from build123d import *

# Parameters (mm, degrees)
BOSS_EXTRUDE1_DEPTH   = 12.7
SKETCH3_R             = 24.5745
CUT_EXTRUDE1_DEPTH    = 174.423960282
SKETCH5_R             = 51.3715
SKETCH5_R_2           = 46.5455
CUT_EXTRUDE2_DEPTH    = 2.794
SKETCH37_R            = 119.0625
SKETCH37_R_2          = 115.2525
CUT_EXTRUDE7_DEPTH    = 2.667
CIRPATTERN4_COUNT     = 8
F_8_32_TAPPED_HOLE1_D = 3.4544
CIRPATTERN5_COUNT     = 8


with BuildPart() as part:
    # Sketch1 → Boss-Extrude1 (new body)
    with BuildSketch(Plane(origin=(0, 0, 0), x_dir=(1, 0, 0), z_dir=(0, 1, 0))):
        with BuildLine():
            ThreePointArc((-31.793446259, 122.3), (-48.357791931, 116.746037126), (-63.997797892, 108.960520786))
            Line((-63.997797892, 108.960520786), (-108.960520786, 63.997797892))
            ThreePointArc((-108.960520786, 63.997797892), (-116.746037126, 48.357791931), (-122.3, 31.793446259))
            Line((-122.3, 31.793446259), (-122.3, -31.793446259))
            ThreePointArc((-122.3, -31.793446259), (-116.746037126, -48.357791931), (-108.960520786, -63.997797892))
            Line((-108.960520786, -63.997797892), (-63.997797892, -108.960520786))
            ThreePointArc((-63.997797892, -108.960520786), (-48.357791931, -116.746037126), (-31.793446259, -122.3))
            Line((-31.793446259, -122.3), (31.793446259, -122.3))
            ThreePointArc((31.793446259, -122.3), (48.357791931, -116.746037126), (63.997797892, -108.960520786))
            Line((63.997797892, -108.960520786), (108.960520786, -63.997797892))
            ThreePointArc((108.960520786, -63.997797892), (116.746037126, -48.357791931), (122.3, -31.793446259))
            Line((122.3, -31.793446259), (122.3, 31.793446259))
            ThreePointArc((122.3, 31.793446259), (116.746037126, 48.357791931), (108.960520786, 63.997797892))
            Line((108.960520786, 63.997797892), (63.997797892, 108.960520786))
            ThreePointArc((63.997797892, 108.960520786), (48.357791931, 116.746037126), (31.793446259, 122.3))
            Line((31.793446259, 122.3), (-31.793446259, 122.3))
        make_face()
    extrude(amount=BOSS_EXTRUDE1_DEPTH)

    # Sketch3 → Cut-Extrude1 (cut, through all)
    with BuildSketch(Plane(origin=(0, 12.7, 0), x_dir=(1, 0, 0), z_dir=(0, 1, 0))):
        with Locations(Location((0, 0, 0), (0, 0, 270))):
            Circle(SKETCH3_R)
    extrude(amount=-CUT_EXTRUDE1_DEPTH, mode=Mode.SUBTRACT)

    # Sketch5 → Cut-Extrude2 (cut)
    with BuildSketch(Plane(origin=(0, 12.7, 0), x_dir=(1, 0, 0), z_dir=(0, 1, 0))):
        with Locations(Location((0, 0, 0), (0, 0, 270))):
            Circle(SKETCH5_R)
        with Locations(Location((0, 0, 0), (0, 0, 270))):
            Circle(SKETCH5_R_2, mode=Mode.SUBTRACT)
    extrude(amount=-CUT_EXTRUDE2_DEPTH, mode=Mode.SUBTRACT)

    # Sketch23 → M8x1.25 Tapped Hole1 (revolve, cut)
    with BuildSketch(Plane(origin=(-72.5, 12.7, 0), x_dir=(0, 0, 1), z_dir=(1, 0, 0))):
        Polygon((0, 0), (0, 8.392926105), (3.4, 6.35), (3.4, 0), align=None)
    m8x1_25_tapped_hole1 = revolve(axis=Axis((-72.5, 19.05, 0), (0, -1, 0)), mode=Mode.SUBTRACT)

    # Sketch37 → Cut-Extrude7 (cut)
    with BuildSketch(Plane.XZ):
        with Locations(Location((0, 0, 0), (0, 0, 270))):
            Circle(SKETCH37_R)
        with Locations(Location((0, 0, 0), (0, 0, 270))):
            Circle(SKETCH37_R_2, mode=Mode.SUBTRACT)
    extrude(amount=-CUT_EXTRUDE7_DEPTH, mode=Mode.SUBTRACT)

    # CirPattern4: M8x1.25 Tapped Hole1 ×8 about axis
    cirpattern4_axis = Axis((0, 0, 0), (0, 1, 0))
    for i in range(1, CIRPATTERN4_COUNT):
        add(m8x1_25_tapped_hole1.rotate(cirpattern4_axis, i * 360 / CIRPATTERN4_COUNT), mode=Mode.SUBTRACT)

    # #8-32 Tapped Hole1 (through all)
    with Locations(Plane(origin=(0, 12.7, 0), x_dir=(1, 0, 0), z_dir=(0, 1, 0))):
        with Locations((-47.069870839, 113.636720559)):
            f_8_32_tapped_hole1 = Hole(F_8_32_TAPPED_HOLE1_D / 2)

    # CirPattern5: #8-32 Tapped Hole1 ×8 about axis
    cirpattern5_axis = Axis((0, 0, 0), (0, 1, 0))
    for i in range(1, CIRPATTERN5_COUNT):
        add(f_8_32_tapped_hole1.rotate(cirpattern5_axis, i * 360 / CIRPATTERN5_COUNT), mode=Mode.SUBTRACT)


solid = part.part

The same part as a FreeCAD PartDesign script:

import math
import FreeCAD as App
import Part
import Sketcher
Q = App.Units.Quantity


def add_polygon(sketch, points):
    """Adds a closed chain of lines whose ends are joined by coincident constraints."""
    first, n = sketch.GeometryCount, len(points)
    for a, b in zip(points, points[1:] + points[:1]):
        sketch.addGeometry(Part.LineSegment(App.Vector(*a, 0), App.Vector(*b, 0)), False)
    for i in range(n):
        sketch.addConstraint(Sketcher.Constraint("Coincident", first + i, 2, first + (i + 1) % n, 1))

doc = App.newDocument("Part")
body = doc.addObject("PartDesign::Body", "Body")

sketch1 = body.newObject("Sketcher::SketchObject", "Sketch")
sketch1.AttachmentSupport = (doc.getObject("XZ_Plane"), [""])
sketch1.MapMode = "FlatFace"
sketch1.addGeometry(Part.ArcOfCircle(Part.Circle(App.Vector(0, 0, 0), App.Vector(0, 0, 1), 126), math.radians(-120.43), math.radians(-104.57)), False)
sketch1.addGeometry(Part.LineSegment(App.Vector(-64, -109, 0), App.Vector(-109, -64, 0)), False)
sketch1.addGeometry(Part.ArcOfCircle(Part.Circle(App.Vector(0, 0, 0), App.Vector(0, 0, 1), 126), math.radians(-165.43), math.radians(-149.57)), False)
sketch1.addGeometry(Part.LineSegment(App.Vector(-122, -32, 0), App.Vector(-122, 32, 0)), False)
sketch1.addGeometry(Part.ArcOfCircle(Part.Circle(App.Vector(0, 0, 0), App.Vector(0, 0, 1), 126), math.radians(149.57), math.radians(165.43)), False)
sketch1.addGeometry(Part.LineSegment(App.Vector(-109, 64, 0), App.Vector(-64, 109, 0)), False)
sketch1.addGeometry(Part.ArcOfCircle(Part.Circle(App.Vector(0, 0, 0), App.Vector(0, 0, 1), 126), math.radians(104.57), math.radians(120.43)), False)
sketch1.addGeometry(Part.LineSegment(App.Vector(-32, 122, 0), App.Vector(32, 122, 0)), False)
sketch1.addGeometry(Part.ArcOfCircle(Part.Circle(App.Vector(0, 0, 0), App.Vector(0, 0, 1), 126), math.radians(59.57), math.radians(75.43)), False)
sketch1.addGeometry(Part.LineSegment(App.Vector(64, 109, 0), App.Vector(109, 64, 0)), False)
sketch1.addGeometry(Part.ArcOfCircle(Part.Circle(App.Vector(0, 0, 0), App.Vector(0, 0, 1), 126), math.radians(14.57), math.radians(30.43)), False)
sketch1.addGeometry(Part.LineSegment(App.Vector(122, 32, 0), App.Vector(122, -32, 0)), False)
sketch1.addGeometry(Part.ArcOfCircle(Part.Circle(App.Vector(0, 0, 0), App.Vector(0, 0, 1), 126), math.radians(-30.43), math.radians(-14.57)), False)
sketch1.addGeometry(Part.LineSegment(App.Vector(109, -64, 0), App.Vector(64, -109, 0)), False)
sketch1.addGeometry(Part.ArcOfCircle(Part.Circle(App.Vector(0, 0, 0), App.Vector(0, 0, 1), 126), math.radians(-75.43), math.radians(-59.57)), False)
sketch1.addGeometry(Part.LineSegment(App.Vector(32, -122, 0), App.Vector(-32, -122, 0)), False)
sketch1.addConstraint(Sketcher.Constraint("Coincident", 0, 1, 1, 1))
sketch1.addConstraint(Sketcher.Constraint("Coincident", 1, 2, 2, 2))
sketch1.addConstraint(Sketcher.Constraint("Coincident", 2, 1, 3, 1))
sketch1.addConstraint(Sketcher.Constraint("Coincident", 3, 2, 4, 2))
sketch1.addConstraint(Sketcher.Constraint("Coincident", 4, 1, 5, 1))
sketch1.addConstraint(Sketcher.Constraint("Coincident", 5, 2, 6, 2))
sketch1.addConstraint(Sketcher.Constraint("Coincident", 6, 1, 7, 1))
sketch1.addConstraint(Sketcher.Constraint("Coincident", 7, 2, 8, 2))
sketch1.addConstraint(Sketcher.Constraint("Coincident", 8, 1, 9, 1))
sketch1.addConstraint(Sketcher.Constraint("Coincident", 9, 2, 10, 2))
sketch1.addConstraint(Sketcher.Constraint("Coincident", 10, 1, 11, 1))
sketch1.addConstraint(Sketcher.Constraint("Coincident", 11, 2, 12, 2))
sketch1.addConstraint(Sketcher.Constraint("Coincident", 12, 1, 13, 1))
sketch1.addConstraint(Sketcher.Constraint("Coincident", 13, 2, 14, 2))
sketch1.addConstraint(Sketcher.Constraint("Coincident", 14, 1, 15, 1))
sketch1.addConstraint(Sketcher.Constraint("Coincident", 15, 2, 0, 2))
sketch1.addConstraint(Sketcher.Constraint("Vertical", 3))
sketch1.addConstraint(Sketcher.Constraint("Horizontal", 7))
sketch1.addConstraint(Sketcher.Constraint("Vertical", 11))
sketch1.addConstraint(Sketcher.Constraint("Horizontal", 15))
sketch1.addConstraint(Sketcher.Constraint("Coincident", 0, 3, -1, 1))
sketch1.addConstraint(Sketcher.Constraint("Coincident", 2, 3, -1, 1))
sketch1.addConstraint(Sketcher.Constraint("Coincident", 4, 3, -1, 1))
sketch1.addConstraint(Sketcher.Constraint("Coincident", 6, 3, -1, 1))
sketch1.addConstraint(Sketcher.Constraint("Coincident", 8, 3, -1, 1))
sketch1.addConstraint(Sketcher.Constraint("Coincident", 10, 3, -1, 1))
sketch1.addConstraint(Sketcher.Constraint("Coincident", 12, 3, -1, 1))
sketch1.addConstraint(Sketcher.Constraint("Coincident", 14, 3, -1, 1))
sketch1.addConstraint(Sketcher.Constraint("Equal", 0, 2))
sketch1.addConstraint(Sketcher.Constraint("Equal", 2, 4))
sketch1.addConstraint(Sketcher.Constraint("Equal", 4, 6))
sketch1.addConstraint(Sketcher.Constraint("Equal", 6, 8))
sketch1.addConstraint(Sketcher.Constraint("Equal", 8, 10))
sketch1.addConstraint(Sketcher.Constraint("Equal", 10, 12))
sketch1.addConstraint(Sketcher.Constraint("Equal", 12, 14))
sketch1.addConstraint(Sketcher.Constraint("Perpendicular", 1, 5))
sketch1.addConstraint(Sketcher.Constraint("Perpendicular", 5, 9))
sketch1.addConstraint(Sketcher.Constraint("Perpendicular", 9, 13))
sketch1.addConstraint(Sketcher.Constraint("Horizontal", 5, 2, 8, 1))
sketch1.addConstraint(Sketcher.Constraint("Horizontal", 4, 1, 9, 2))
sketch1.addConstraint(Sketcher.Constraint("Horizontal", 3, 2, 10, 1))
sketch1.addConstraint(Sketcher.Constraint("Horizontal", 1, 2, 12, 1))
sketch1.addConstraint(Sketcher.Constraint("Vertical", 1, 2, 4, 1))
sketch1.addConstraint(Sketcher.Constraint("Vertical", 7, 2, 14, 1))
sketch1.addConstraint(Sketcher.Constraint("Equal", 15, 3))
sketch1.addConstraint(Sketcher.Constraint("Radius", 0, Q("4.975 in")))
sketch1.addConstraint(Sketcher.Constraint("DistanceX", 2, 1, -1, 1, Q("122.3 mm")))
sketch1.addConstraint(Sketcher.Constraint("DistanceY", 0, 1, -1, 1, Q("108.960521 mm")))
pad1 = body.newObject("PartDesign::Pad", "Pad")
pad1.Profile = sketch1
pad1.Length = Q("0.5 in")
pad1.Reversed = True

sketch2 = body.newObject("Sketcher::SketchObject", "Sketch001")
sketch2.AttachmentSupport = (doc.getObject("XZ_Plane"), [""])
sketch2.MapMode = "FlatFace"
sketch2.AttachmentOffset = App.Placement(App.Vector(0, 0, -0.5 * 25.4), App.Rotation())
sketch2.addGeometry(Part.Circle(App.Vector(0, 0, 0), App.Vector(0, 0, 1), 25), False)
sketch2.addConstraint(Sketcher.Constraint("Coincident", 0, 3, -1, 1))
sketch2.addConstraint(Sketcher.Constraint("Diameter", 0, Q("1.935 in")))
pocket1 = body.newObject("PartDesign::Pocket", "Pocket")
pocket1.Profile = sketch2
pocket1.Type = "ThroughAll"
pocket1.Reversed = True

sketch3 = body.newObject("Sketcher::SketchObject", "Sketch002")
sketch3.AttachmentSupport = (doc.getObject("XZ_Plane"), [""])
sketch3.MapMode = "FlatFace"
sketch3.AttachmentOffset = App.Placement(App.Vector(0, 0, -0.5 * 25.4), App.Rotation())
sketch3.addGeometry(Part.Circle(App.Vector(0, 0, 0), App.Vector(0, 0, 1), 51), False)
sketch3.addGeometry(Part.Circle(App.Vector(0, 0, 0), App.Vector(0, 0, 1), 47), False)
sketch3.addConstraint(Sketcher.Constraint("Coincident", 0, 3, -1, 1))
sketch3.addConstraint(Sketcher.Constraint("Coincident", 1, 3, -1, 1))
sketch3.addConstraint(Sketcher.Constraint("Diameter", 0, Q("4.045 in")))
sketch3.addConstraint(Sketcher.Constraint("Diameter", 1, Q("3.665 in")))
pocket2 = body.newObject("PartDesign::Pocket", "Pocket001")
pocket2.Profile = sketch3
pocket2.Length = Q("0.11 in")
pocket2.Reversed = True

sketch4 = body.newObject("Sketcher::SketchObject", "Sketch003")
sketch4.AttachmentSupport = (doc.getObject("YZ_Plane"), [""])
sketch4.MapMode = "FlatFace"
sketch4.AttachmentOffset = App.Placement(App.Vector(0, 0, -72.5), App.Rotation())
add_polygon(sketch4, [(4.3, 0), (12.7, 0), (12.7, 3.4), (6.3, 3.4)])
sketch4.addConstraint(Sketcher.Constraint("Horizontal", 0))
sketch4.addConstraint(Sketcher.Constraint("Vertical", 1))
sketch4.addConstraint(Sketcher.Constraint("Horizontal", 2))
sketch4.addConstraint(Sketcher.Constraint("PointOnObject", 0, 2, -1))
sketch4.addConstraint(Sketcher.Constraint("Angle", 3, Q("-121 deg")))
sketch4.addConstraint(Sketcher.Constraint("DistanceX", 2, 2, 2, 1, Q("0.25 in")))
sketch4.addConstraint(Sketcher.Constraint("DistanceX", -1, 1, 0, 2, Q("0.5 in")))
sketch4.addConstraint(Sketcher.Constraint("DistanceY", 1, 1, 1, 2, Q("3.4 mm")))
groove = body.newObject("PartDesign::Groove", "Groove")
groove.Profile = sketch4
groove.ReferenceAxis = (sketch4, ["H_Axis"])
groove.Angle = 360

sketch5 = body.newObject("Sketcher::SketchObject", "Sketch004")
sketch5.AttachmentSupport = (doc.getObject("XZ_Plane"), [""])
sketch5.MapMode = "FlatFace"
sketch5.addGeometry(Part.Circle(App.Vector(0, 0, 0), App.Vector(0, 0, 1), 119), False)
sketch5.addGeometry(Part.Circle(App.Vector(0, 0, 0), App.Vector(0, 0, 1), 115), False)
sketch5.addConstraint(Sketcher.Constraint("Coincident", 0, 3, -1, 1))
sketch5.addConstraint(Sketcher.Constraint("Coincident", 1, 3, -1, 1))
sketch5.addConstraint(Sketcher.Constraint("Diameter", 0, Q("9.375 in")))
sketch5.addConstraint(Sketcher.Constraint("Diameter", 1, Q("9.075 in")))
pocket3 = body.newObject("PartDesign::Pocket", "Pocket002")
pocket3.Profile = sketch5
pocket3.Length = Q("0.105 in")
doc.recompute()

polarpattern = body.newObject("PartDesign::PolarPattern", "PolarPattern")
polarpattern.Originals = [groove]
polarpattern.Axis = (doc.getObject("Y_Axis"), [""])
polarpattern.Angle = 360
polarpattern.Occurrences = 8
body.Tip = polarpattern

sketch6 = body.newObject("Sketcher::SketchObject", "Sketch005")
sketch6.AttachmentSupport = (doc.getObject("XZ_Plane"), [""])
sketch6.MapMode = "FlatFace"
sketch6.AttachmentOffset = App.Placement(App.Vector(0, 0, -0.5 * 25.4), App.Rotation())
sketch6.addGeometry(Part.Circle(App.Vector(-47.1, -113.6, 0), App.Vector(0, 0, 1), 1.7), False)
sketch6.addConstraint(Sketcher.Constraint("Diameter", 0, Q("0.136 in")))
sketch6.addConstraint(Sketcher.Constraint("DistanceX", 0, 3, -1, 1, Q("47.069871 mm")))
sketch6.addConstraint(Sketcher.Constraint("DistanceY", 0, 3, -1, 1, Q("113.636721 mm")))
doc.recompute()
hole = body.newObject("PartDesign::Hole", "Hole")
hole.Profile = sketch6
hole.ThreadType = "None"
hole.Diameter = Q("0.136 in")
hole.DepthType = "ThroughAll"
hole.Reversed = True
doc.recompute()

polarpattern2 = body.newObject("PartDesign::PolarPattern", "PolarPattern001")
polarpattern2.Originals = [hole]
polarpattern2.Axis = (doc.getObject("Y_Axis"), [""])
polarpattern2.Angle = 360
polarpattern2.Occurrences = 8
body.Tip = polarpattern2

doc.recompute()
